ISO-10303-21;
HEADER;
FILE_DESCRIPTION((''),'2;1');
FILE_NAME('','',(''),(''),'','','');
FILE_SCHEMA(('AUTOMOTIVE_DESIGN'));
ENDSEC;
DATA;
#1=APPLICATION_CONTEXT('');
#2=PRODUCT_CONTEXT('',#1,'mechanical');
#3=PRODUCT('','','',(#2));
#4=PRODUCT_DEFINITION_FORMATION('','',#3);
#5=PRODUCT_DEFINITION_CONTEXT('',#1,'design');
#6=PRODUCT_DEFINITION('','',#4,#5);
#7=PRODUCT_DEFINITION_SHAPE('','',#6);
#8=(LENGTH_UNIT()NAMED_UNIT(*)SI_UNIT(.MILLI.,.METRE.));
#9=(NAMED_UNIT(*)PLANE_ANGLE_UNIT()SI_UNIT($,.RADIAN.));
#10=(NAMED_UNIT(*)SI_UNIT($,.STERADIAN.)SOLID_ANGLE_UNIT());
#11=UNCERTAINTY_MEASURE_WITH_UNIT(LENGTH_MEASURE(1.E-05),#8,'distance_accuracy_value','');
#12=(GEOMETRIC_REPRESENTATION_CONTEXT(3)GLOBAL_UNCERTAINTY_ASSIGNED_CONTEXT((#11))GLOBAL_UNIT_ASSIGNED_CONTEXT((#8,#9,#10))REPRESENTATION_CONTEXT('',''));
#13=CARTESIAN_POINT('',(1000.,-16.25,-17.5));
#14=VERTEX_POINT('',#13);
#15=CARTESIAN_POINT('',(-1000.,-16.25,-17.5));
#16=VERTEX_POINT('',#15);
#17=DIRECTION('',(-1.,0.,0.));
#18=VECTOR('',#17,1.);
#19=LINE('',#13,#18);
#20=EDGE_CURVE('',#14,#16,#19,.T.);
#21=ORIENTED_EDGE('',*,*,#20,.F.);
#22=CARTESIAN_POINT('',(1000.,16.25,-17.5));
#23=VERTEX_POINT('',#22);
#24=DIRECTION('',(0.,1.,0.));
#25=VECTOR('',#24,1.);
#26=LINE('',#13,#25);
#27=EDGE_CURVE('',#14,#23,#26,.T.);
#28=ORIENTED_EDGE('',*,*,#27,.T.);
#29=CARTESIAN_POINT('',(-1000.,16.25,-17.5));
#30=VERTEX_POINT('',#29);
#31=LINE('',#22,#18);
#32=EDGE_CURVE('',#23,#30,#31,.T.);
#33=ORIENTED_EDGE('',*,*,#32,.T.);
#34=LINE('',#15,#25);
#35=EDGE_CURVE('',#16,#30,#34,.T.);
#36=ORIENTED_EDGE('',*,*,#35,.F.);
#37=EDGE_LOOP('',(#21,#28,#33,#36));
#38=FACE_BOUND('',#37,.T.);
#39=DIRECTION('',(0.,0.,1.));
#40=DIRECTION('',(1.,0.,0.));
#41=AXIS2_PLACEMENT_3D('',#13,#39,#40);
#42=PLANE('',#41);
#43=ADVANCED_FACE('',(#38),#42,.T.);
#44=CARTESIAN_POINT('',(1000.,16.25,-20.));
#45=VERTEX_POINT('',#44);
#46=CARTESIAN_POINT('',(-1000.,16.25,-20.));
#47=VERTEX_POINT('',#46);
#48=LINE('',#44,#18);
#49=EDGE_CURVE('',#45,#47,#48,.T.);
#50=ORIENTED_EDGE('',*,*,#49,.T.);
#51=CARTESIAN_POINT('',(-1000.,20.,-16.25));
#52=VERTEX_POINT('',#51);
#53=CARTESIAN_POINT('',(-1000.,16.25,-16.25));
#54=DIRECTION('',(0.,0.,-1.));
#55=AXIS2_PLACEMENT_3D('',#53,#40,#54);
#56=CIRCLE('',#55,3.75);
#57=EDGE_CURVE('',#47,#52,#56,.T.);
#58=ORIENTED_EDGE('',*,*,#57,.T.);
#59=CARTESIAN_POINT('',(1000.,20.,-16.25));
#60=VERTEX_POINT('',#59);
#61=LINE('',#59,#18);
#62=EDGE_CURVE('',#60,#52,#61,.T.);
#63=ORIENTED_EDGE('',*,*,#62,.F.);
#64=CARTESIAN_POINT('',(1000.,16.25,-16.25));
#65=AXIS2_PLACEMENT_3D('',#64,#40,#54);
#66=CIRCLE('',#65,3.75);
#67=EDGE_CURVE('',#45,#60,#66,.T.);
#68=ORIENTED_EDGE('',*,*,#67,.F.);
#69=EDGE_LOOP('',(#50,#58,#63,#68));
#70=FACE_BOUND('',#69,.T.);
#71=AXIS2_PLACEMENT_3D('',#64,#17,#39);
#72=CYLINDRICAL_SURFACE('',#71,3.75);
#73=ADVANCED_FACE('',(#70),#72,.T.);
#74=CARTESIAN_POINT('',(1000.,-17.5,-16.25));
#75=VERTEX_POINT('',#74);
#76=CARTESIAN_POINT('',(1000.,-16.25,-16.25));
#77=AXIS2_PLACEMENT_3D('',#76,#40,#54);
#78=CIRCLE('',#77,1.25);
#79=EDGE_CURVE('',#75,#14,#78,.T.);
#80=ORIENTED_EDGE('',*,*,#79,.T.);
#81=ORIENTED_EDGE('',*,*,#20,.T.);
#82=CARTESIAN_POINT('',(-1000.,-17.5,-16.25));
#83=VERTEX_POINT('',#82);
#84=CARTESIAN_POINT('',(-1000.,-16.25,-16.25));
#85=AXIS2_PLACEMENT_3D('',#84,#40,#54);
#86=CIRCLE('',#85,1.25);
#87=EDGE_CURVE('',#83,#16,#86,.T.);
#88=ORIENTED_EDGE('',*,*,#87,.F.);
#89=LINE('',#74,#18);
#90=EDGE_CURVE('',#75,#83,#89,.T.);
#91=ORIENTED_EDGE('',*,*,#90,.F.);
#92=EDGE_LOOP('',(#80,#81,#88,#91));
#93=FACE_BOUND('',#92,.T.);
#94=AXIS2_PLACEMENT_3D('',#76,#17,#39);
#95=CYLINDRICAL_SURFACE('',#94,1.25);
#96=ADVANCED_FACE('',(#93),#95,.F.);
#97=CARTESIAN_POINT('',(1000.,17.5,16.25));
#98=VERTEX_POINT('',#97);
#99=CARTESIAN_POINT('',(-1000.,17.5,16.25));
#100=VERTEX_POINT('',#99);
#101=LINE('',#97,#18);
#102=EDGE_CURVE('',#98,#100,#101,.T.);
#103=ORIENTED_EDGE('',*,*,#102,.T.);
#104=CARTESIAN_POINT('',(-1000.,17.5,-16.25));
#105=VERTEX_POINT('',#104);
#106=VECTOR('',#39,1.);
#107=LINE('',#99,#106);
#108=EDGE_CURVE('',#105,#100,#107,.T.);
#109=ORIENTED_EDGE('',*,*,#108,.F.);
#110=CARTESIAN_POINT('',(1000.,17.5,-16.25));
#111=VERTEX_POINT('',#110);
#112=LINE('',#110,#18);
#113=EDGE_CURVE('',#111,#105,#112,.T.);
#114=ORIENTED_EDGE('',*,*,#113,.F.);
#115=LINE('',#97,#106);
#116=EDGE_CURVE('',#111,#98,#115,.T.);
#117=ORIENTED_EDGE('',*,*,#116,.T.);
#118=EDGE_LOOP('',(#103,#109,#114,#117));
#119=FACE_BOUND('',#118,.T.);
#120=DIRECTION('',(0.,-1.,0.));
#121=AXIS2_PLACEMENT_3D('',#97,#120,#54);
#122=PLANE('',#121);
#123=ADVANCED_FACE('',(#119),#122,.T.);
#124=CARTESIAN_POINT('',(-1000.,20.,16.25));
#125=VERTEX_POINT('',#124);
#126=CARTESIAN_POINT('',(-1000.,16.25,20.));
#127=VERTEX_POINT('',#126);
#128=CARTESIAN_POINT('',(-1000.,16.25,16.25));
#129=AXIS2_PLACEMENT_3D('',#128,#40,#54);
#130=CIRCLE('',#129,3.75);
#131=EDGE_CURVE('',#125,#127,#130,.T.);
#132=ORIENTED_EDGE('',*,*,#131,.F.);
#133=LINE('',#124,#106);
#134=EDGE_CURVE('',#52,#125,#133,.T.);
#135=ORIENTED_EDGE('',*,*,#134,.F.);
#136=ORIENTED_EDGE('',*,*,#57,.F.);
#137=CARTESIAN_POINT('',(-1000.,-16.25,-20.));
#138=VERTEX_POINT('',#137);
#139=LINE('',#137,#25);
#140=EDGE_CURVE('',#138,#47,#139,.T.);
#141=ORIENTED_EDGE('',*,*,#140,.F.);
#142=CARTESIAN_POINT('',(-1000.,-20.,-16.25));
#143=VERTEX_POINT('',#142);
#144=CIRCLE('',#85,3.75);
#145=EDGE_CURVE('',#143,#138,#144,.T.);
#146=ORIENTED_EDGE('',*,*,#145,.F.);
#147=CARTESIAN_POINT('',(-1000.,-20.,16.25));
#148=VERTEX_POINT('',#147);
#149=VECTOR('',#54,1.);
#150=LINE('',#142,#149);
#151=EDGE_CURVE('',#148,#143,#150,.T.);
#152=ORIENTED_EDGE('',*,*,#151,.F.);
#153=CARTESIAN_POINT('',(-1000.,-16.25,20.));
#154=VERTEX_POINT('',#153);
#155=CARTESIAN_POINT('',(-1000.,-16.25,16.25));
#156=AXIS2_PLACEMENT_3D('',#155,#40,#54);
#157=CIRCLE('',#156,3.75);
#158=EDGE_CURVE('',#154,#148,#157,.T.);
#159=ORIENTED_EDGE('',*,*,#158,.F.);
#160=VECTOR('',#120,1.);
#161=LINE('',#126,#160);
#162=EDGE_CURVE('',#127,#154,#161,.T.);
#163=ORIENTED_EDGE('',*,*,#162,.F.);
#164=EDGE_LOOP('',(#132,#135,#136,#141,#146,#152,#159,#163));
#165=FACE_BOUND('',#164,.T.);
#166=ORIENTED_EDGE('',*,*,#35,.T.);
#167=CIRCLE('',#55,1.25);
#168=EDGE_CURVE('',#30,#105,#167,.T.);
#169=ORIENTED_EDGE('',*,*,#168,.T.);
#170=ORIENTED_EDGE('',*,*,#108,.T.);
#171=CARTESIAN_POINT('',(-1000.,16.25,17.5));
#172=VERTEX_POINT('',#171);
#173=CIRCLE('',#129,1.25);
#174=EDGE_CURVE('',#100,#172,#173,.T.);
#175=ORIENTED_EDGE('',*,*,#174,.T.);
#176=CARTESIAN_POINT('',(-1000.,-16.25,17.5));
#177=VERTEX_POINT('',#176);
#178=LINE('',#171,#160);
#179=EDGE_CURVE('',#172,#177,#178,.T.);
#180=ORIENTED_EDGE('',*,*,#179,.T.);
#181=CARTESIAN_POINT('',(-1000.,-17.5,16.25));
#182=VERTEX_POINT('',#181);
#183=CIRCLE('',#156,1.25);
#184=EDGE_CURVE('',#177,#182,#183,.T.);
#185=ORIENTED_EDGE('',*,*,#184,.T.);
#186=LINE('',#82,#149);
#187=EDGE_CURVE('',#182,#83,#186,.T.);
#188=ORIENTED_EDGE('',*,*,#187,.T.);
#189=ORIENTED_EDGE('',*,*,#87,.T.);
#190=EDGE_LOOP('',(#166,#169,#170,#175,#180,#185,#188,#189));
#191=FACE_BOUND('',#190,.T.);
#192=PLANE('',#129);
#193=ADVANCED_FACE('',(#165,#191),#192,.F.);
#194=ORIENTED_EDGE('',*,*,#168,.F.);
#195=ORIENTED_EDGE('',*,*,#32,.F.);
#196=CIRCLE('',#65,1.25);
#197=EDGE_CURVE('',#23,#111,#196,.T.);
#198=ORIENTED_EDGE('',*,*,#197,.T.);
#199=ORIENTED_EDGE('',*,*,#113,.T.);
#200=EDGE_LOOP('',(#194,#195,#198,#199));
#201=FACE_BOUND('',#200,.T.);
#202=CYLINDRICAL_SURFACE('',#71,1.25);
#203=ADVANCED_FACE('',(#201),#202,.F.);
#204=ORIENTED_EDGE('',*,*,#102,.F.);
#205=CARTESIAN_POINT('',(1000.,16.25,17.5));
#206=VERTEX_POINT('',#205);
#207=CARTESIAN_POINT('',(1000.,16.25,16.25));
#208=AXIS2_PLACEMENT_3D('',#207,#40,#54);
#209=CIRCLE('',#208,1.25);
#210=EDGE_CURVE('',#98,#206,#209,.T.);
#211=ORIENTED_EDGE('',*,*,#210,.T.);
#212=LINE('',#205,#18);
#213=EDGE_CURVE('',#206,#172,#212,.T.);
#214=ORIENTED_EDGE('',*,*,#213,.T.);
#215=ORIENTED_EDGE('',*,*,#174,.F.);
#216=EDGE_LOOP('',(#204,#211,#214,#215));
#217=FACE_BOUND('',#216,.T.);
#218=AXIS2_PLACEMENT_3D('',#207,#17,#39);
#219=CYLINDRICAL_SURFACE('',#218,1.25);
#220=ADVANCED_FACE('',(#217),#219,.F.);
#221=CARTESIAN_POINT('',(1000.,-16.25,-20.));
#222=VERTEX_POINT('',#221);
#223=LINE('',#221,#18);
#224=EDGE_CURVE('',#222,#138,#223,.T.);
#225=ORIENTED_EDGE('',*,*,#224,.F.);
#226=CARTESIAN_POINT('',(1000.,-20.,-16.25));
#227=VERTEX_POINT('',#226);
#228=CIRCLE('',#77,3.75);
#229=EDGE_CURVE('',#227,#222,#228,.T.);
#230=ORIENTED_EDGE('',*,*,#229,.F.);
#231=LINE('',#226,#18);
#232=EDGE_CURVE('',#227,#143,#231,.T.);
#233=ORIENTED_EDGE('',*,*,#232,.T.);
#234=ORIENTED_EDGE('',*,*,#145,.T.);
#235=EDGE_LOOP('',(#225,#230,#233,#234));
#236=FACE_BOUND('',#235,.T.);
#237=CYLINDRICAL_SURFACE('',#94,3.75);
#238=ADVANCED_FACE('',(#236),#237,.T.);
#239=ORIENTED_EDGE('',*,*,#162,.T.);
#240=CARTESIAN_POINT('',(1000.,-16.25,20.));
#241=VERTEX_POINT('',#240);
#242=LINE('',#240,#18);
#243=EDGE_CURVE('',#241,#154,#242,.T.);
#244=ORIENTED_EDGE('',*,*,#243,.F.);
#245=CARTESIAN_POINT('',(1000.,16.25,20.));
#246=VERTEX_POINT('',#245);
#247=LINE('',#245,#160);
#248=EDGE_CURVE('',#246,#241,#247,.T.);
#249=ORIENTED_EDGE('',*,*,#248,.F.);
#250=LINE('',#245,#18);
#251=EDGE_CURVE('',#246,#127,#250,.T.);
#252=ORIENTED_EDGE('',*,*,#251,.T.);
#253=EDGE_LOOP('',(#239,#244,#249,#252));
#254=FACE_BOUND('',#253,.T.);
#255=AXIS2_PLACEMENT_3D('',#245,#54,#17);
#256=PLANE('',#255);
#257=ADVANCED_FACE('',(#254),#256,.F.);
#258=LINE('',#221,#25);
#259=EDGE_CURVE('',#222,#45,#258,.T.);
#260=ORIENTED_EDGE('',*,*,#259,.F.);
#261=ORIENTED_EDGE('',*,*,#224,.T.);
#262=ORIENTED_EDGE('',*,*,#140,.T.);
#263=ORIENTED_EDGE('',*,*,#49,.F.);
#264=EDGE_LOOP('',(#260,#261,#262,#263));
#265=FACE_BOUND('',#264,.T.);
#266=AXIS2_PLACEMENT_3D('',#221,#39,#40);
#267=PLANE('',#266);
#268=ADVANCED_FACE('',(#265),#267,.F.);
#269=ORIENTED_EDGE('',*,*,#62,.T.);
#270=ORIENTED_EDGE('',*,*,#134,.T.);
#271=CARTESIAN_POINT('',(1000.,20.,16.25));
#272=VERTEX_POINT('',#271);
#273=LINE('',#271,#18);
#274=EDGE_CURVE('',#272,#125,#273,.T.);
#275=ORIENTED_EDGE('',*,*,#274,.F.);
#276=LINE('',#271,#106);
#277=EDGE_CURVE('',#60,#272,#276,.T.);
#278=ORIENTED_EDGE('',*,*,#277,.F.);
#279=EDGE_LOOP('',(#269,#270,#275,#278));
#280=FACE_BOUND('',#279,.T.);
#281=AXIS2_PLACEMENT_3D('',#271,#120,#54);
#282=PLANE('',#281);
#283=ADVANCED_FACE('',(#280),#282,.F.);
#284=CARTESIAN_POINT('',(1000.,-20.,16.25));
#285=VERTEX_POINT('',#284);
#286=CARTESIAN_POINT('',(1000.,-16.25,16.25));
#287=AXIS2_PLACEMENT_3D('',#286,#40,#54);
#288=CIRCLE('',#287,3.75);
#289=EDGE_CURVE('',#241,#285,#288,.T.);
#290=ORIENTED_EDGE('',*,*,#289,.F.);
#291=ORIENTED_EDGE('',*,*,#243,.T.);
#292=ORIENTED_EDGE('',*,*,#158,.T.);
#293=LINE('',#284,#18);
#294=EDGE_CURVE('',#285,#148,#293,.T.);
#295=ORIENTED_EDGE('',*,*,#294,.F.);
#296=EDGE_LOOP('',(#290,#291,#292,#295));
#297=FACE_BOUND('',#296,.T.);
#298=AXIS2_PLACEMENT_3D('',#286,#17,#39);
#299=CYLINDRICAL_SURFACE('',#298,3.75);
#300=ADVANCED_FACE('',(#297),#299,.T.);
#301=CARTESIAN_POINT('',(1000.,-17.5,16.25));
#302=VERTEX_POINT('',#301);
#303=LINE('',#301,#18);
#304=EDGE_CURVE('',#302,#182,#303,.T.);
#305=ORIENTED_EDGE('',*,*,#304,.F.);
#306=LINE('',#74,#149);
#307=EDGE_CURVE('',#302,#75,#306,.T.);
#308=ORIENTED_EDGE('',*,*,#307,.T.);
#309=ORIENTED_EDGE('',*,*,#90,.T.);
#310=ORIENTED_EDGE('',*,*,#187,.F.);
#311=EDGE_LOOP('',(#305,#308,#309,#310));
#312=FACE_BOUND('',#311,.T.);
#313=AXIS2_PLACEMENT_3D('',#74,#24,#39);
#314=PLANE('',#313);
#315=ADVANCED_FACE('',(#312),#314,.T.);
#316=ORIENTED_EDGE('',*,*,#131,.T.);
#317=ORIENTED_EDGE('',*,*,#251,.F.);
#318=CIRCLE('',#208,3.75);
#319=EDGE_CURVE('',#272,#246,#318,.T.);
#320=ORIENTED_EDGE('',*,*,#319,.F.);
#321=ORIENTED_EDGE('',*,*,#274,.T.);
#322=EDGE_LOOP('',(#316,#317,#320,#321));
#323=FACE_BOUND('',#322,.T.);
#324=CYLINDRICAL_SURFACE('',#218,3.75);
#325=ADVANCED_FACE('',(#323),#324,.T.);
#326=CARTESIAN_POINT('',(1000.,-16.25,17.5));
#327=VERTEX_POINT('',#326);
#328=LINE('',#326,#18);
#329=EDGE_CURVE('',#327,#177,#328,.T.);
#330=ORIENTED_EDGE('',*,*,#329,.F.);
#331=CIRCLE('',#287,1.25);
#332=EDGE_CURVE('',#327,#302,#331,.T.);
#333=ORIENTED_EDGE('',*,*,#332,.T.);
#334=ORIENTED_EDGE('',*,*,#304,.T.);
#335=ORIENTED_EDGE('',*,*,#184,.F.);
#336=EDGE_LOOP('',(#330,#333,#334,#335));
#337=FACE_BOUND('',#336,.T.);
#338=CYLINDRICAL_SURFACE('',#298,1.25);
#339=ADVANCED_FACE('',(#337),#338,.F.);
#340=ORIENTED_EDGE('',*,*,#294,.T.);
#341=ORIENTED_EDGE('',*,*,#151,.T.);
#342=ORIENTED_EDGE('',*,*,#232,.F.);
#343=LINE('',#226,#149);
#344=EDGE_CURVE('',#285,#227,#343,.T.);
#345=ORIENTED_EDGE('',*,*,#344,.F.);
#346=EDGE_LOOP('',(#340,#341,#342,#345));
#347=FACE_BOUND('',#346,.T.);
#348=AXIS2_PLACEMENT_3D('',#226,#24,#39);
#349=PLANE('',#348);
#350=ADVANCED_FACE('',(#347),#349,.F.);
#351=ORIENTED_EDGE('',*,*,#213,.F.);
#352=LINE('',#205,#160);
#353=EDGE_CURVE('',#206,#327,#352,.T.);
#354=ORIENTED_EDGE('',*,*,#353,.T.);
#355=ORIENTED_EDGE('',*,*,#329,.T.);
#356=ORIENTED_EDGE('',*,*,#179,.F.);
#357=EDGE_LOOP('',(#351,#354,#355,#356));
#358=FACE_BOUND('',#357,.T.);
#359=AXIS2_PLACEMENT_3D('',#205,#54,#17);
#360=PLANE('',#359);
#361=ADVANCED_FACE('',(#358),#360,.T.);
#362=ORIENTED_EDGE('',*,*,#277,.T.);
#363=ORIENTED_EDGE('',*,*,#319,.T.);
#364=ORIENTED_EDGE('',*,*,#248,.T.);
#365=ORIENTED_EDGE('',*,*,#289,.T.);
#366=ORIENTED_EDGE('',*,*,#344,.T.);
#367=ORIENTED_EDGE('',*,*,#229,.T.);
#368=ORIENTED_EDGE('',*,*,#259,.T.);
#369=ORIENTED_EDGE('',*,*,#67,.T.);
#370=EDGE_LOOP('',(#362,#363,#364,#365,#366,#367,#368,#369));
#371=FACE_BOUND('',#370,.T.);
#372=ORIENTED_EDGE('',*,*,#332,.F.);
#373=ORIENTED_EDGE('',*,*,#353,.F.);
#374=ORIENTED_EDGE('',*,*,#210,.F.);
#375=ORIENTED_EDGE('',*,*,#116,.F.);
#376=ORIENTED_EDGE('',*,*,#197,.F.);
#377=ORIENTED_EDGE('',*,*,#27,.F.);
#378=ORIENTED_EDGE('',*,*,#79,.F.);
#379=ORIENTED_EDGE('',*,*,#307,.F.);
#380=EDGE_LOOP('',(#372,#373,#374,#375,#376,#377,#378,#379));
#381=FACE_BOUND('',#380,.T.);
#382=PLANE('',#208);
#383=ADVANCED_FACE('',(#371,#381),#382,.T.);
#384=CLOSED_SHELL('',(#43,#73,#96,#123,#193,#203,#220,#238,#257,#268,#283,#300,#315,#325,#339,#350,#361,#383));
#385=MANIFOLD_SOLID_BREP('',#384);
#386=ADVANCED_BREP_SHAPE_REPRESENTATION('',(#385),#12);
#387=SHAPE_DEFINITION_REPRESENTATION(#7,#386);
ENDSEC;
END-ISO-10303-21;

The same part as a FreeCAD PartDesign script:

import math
import FreeCAD as App
import Part
import Sketcher

V = App.Vector
Q = App.Units.Quantity

doc = App.newDocument("Part")
params = doc.addObject("Spreadsheet::Sheet", "Params")
for row, (alias, value) in enumerate([
    ("sketch1_radius", "3.75 mm"),
    ("sketch1_radius2", "1.25 mm"),
    ("sketch1_width", "32.5 mm"),
    ("pad1_length", "2000 mm"),
], start=1):
    params.set(f"A{row}", alias)
    params.set(f"B{row}", "=" + value)
    params.setAlias(f"B{row}", alias)

body = doc.addObject("PartDesign::Body", "Body")

# Sketch on YZ plane
sketch1 = body.newObject("Sketcher::SketchObject", "Sketch")
sketch1.AttachmentSupport = (doc.getObject("YZ_Plane"), [""])
sketch1.MapMode = "FlatFace"
sketch1.AttachmentOffset = App.Placement(V(0, 0, -1000), App.Rotation())
sketch1.addGeometry([
    Part.LineSegment(V(-16.2, -20, 0), V(16.2, -20, 0)),  # 0
    Part.ArcOfCircle(Part.Circle(V(16.2, -16.2, 0), V(0, 0, 1), 3.8), math.radians(-90), math.radians(0)),  # 1
    Part.LineSegment(V(20, -16.2, 0), V(20, 16.2, 0)),  # 2
    Part.ArcOfCircle(Part.Circle(V(16.2, 16.2, 0), V(0, 0, 1), 3.8), math.radians(0), math.radians(90)),  # 3
    Part.LineSegment(V(16.2, 20, 0), V(-16.2, 20, 0)),  # 4
    Part.ArcOfCircle(Part.Circle(V(-16.2, 16.2, 0), V(0, 0, 1), 3.8), math.radians(90), math.radians(180)),  # 5
    Part.LineSegment(V(-20, 16.2, 0), V(-20, -16.2, 0)),  # 6
    Part.ArcOfCircle(Part.Circle(V(-16.2, -16.2, 0), V(0, 0, 1), 3.8), math.radians(-180), math.radians(-90)),  # 7
    Part.LineSegment(V(16.2, -17.5, 0), V(-16.2, -17.5, 0)),  # 8
    Part.ArcOfCircle(Part.Circle(V(-16.2, -16.2, 0), V(0, 0, 1), 1.3), math.radians(-180), math.radians(-90)),  # 9
    Part.LineSegment(V(-17.5, -16.2, 0), V(-17.5, 16.2, 0)),  # 10
    Part.ArcOfCircle(Part.Circle(V(-16.2, 16.2, 0), V(0, 0, 1), 1.3), math.radians(90), math.radians(180)),  # 11
    Part.LineSegment(V(-16.2, 17.5, 0), V(16.2, 17.5, 0)),  # 12
    Part.ArcOfCircle(Part.Circle(V(16.2, 16.2, 0), V(0, 0, 1), 1.3), math.radians(0), math.radians(90)),  # 13
    Part.LineSegment(V(17.5, 16.2, 0), V(17.5, -16.2, 0)),  # 14
    Part.ArcOfCircle(Part.Circle(V(16.2, -16.2, 0), V(0, 0, 1), 1.3), math.radians(-90), math.radians(0)),  # 15
], False)
sketch1.addConstraint([
    Sketcher.Constraint("Tangent", 0, 2, 1, 1),
    Sketcher.Constraint("Tangent", 1, 2, 2, 1),
    Sketcher.Constraint("Tangent", 2, 2, 3, 1),
    Sketcher.Constraint("Tangent", 3, 2, 4, 1),
    Sketcher.Constraint("Tangent", 4, 2, 5, 1),
    Sketcher.Constraint("Tangent", 5, 2, 6, 1),
    Sketcher.Constraint("Tangent", 6, 2, 7, 1),
    Sketcher.Constraint("Tangent", 7, 2, 0, 1),
    Sketcher.Constraint("Tangent", 8, 2, 9, 2),
    Sketcher.Constraint("Tangent", 9, 1, 10, 1),
    Sketcher.Constraint("Tangent", 10, 2, 11, 2),
    Sketcher.Constraint("Tangent", 11, 1, 12, 1),
    Sketcher.Constraint("Tangent", 12, 2, 13, 2),
    Sketcher.Constraint("Tangent", 13, 1, 14, 1),
    Sketcher.Constraint("Tangent", 14, 2, 15, 2),
    Sketcher.Constraint("Tangent", 15, 1, 8, 1),
    Sketcher.Constraint("Horizontal", 0),
    Sketcher.Constraint("Vertical", 2),
    Sketcher.Constraint("Horizontal", 4),
    Sketcher.Constraint("Vertical", 6),
    Sketcher.Constraint("Horizontal", 8),
    Sketcher.Constraint("Vertical", 10),
    Sketcher.Constraint("Horizontal", 12),
    Sketcher.Constraint("Vertical", 14),
    Sketcher.Constraint("Coincident", 9, 3, 7, 3),
    Sketcher.Constraint("Coincident", 11, 3, 5, 3),
    Sketcher.Constraint("Coincident", 13, 3, 3, 3),
    Sketcher.Constraint("Equal", 1, 3),
    Sketcher.Constraint("Equal", 3, 5),
    Sketcher.Constraint("Equal", 5, 7),
    Sketcher.Constraint("Equal", 13, 15),
    Sketcher.Constraint("Symmetric", 1, 3, 5, 3, -1, 1),
    Sketcher.Constraint("Equal", 12, 2),
    Sketcher.Constraint("Radius", 1, Q("3.75 mm")),
    Sketcher.Constraint("Radius", 9, Q("1.25 mm")),
    Sketcher.Constraint("DistanceX", 0, 1, 0, 2, Q("32.5 mm")),
])
sketch1.setExpression("Constraints[33]", "Params.sketch1_radius")
sketch1.setExpression("Constraints[34]", "Params.sketch1_radius2")
sketch1.setExpression("Constraints[35]", "Params.sketch1_width")
pad1 = body.newObject("PartDesign::Pad", "Pad")
pad1.Profile = sketch1
pad1.setExpression("Length", "Params.pad1_length")

doc.recompute()
